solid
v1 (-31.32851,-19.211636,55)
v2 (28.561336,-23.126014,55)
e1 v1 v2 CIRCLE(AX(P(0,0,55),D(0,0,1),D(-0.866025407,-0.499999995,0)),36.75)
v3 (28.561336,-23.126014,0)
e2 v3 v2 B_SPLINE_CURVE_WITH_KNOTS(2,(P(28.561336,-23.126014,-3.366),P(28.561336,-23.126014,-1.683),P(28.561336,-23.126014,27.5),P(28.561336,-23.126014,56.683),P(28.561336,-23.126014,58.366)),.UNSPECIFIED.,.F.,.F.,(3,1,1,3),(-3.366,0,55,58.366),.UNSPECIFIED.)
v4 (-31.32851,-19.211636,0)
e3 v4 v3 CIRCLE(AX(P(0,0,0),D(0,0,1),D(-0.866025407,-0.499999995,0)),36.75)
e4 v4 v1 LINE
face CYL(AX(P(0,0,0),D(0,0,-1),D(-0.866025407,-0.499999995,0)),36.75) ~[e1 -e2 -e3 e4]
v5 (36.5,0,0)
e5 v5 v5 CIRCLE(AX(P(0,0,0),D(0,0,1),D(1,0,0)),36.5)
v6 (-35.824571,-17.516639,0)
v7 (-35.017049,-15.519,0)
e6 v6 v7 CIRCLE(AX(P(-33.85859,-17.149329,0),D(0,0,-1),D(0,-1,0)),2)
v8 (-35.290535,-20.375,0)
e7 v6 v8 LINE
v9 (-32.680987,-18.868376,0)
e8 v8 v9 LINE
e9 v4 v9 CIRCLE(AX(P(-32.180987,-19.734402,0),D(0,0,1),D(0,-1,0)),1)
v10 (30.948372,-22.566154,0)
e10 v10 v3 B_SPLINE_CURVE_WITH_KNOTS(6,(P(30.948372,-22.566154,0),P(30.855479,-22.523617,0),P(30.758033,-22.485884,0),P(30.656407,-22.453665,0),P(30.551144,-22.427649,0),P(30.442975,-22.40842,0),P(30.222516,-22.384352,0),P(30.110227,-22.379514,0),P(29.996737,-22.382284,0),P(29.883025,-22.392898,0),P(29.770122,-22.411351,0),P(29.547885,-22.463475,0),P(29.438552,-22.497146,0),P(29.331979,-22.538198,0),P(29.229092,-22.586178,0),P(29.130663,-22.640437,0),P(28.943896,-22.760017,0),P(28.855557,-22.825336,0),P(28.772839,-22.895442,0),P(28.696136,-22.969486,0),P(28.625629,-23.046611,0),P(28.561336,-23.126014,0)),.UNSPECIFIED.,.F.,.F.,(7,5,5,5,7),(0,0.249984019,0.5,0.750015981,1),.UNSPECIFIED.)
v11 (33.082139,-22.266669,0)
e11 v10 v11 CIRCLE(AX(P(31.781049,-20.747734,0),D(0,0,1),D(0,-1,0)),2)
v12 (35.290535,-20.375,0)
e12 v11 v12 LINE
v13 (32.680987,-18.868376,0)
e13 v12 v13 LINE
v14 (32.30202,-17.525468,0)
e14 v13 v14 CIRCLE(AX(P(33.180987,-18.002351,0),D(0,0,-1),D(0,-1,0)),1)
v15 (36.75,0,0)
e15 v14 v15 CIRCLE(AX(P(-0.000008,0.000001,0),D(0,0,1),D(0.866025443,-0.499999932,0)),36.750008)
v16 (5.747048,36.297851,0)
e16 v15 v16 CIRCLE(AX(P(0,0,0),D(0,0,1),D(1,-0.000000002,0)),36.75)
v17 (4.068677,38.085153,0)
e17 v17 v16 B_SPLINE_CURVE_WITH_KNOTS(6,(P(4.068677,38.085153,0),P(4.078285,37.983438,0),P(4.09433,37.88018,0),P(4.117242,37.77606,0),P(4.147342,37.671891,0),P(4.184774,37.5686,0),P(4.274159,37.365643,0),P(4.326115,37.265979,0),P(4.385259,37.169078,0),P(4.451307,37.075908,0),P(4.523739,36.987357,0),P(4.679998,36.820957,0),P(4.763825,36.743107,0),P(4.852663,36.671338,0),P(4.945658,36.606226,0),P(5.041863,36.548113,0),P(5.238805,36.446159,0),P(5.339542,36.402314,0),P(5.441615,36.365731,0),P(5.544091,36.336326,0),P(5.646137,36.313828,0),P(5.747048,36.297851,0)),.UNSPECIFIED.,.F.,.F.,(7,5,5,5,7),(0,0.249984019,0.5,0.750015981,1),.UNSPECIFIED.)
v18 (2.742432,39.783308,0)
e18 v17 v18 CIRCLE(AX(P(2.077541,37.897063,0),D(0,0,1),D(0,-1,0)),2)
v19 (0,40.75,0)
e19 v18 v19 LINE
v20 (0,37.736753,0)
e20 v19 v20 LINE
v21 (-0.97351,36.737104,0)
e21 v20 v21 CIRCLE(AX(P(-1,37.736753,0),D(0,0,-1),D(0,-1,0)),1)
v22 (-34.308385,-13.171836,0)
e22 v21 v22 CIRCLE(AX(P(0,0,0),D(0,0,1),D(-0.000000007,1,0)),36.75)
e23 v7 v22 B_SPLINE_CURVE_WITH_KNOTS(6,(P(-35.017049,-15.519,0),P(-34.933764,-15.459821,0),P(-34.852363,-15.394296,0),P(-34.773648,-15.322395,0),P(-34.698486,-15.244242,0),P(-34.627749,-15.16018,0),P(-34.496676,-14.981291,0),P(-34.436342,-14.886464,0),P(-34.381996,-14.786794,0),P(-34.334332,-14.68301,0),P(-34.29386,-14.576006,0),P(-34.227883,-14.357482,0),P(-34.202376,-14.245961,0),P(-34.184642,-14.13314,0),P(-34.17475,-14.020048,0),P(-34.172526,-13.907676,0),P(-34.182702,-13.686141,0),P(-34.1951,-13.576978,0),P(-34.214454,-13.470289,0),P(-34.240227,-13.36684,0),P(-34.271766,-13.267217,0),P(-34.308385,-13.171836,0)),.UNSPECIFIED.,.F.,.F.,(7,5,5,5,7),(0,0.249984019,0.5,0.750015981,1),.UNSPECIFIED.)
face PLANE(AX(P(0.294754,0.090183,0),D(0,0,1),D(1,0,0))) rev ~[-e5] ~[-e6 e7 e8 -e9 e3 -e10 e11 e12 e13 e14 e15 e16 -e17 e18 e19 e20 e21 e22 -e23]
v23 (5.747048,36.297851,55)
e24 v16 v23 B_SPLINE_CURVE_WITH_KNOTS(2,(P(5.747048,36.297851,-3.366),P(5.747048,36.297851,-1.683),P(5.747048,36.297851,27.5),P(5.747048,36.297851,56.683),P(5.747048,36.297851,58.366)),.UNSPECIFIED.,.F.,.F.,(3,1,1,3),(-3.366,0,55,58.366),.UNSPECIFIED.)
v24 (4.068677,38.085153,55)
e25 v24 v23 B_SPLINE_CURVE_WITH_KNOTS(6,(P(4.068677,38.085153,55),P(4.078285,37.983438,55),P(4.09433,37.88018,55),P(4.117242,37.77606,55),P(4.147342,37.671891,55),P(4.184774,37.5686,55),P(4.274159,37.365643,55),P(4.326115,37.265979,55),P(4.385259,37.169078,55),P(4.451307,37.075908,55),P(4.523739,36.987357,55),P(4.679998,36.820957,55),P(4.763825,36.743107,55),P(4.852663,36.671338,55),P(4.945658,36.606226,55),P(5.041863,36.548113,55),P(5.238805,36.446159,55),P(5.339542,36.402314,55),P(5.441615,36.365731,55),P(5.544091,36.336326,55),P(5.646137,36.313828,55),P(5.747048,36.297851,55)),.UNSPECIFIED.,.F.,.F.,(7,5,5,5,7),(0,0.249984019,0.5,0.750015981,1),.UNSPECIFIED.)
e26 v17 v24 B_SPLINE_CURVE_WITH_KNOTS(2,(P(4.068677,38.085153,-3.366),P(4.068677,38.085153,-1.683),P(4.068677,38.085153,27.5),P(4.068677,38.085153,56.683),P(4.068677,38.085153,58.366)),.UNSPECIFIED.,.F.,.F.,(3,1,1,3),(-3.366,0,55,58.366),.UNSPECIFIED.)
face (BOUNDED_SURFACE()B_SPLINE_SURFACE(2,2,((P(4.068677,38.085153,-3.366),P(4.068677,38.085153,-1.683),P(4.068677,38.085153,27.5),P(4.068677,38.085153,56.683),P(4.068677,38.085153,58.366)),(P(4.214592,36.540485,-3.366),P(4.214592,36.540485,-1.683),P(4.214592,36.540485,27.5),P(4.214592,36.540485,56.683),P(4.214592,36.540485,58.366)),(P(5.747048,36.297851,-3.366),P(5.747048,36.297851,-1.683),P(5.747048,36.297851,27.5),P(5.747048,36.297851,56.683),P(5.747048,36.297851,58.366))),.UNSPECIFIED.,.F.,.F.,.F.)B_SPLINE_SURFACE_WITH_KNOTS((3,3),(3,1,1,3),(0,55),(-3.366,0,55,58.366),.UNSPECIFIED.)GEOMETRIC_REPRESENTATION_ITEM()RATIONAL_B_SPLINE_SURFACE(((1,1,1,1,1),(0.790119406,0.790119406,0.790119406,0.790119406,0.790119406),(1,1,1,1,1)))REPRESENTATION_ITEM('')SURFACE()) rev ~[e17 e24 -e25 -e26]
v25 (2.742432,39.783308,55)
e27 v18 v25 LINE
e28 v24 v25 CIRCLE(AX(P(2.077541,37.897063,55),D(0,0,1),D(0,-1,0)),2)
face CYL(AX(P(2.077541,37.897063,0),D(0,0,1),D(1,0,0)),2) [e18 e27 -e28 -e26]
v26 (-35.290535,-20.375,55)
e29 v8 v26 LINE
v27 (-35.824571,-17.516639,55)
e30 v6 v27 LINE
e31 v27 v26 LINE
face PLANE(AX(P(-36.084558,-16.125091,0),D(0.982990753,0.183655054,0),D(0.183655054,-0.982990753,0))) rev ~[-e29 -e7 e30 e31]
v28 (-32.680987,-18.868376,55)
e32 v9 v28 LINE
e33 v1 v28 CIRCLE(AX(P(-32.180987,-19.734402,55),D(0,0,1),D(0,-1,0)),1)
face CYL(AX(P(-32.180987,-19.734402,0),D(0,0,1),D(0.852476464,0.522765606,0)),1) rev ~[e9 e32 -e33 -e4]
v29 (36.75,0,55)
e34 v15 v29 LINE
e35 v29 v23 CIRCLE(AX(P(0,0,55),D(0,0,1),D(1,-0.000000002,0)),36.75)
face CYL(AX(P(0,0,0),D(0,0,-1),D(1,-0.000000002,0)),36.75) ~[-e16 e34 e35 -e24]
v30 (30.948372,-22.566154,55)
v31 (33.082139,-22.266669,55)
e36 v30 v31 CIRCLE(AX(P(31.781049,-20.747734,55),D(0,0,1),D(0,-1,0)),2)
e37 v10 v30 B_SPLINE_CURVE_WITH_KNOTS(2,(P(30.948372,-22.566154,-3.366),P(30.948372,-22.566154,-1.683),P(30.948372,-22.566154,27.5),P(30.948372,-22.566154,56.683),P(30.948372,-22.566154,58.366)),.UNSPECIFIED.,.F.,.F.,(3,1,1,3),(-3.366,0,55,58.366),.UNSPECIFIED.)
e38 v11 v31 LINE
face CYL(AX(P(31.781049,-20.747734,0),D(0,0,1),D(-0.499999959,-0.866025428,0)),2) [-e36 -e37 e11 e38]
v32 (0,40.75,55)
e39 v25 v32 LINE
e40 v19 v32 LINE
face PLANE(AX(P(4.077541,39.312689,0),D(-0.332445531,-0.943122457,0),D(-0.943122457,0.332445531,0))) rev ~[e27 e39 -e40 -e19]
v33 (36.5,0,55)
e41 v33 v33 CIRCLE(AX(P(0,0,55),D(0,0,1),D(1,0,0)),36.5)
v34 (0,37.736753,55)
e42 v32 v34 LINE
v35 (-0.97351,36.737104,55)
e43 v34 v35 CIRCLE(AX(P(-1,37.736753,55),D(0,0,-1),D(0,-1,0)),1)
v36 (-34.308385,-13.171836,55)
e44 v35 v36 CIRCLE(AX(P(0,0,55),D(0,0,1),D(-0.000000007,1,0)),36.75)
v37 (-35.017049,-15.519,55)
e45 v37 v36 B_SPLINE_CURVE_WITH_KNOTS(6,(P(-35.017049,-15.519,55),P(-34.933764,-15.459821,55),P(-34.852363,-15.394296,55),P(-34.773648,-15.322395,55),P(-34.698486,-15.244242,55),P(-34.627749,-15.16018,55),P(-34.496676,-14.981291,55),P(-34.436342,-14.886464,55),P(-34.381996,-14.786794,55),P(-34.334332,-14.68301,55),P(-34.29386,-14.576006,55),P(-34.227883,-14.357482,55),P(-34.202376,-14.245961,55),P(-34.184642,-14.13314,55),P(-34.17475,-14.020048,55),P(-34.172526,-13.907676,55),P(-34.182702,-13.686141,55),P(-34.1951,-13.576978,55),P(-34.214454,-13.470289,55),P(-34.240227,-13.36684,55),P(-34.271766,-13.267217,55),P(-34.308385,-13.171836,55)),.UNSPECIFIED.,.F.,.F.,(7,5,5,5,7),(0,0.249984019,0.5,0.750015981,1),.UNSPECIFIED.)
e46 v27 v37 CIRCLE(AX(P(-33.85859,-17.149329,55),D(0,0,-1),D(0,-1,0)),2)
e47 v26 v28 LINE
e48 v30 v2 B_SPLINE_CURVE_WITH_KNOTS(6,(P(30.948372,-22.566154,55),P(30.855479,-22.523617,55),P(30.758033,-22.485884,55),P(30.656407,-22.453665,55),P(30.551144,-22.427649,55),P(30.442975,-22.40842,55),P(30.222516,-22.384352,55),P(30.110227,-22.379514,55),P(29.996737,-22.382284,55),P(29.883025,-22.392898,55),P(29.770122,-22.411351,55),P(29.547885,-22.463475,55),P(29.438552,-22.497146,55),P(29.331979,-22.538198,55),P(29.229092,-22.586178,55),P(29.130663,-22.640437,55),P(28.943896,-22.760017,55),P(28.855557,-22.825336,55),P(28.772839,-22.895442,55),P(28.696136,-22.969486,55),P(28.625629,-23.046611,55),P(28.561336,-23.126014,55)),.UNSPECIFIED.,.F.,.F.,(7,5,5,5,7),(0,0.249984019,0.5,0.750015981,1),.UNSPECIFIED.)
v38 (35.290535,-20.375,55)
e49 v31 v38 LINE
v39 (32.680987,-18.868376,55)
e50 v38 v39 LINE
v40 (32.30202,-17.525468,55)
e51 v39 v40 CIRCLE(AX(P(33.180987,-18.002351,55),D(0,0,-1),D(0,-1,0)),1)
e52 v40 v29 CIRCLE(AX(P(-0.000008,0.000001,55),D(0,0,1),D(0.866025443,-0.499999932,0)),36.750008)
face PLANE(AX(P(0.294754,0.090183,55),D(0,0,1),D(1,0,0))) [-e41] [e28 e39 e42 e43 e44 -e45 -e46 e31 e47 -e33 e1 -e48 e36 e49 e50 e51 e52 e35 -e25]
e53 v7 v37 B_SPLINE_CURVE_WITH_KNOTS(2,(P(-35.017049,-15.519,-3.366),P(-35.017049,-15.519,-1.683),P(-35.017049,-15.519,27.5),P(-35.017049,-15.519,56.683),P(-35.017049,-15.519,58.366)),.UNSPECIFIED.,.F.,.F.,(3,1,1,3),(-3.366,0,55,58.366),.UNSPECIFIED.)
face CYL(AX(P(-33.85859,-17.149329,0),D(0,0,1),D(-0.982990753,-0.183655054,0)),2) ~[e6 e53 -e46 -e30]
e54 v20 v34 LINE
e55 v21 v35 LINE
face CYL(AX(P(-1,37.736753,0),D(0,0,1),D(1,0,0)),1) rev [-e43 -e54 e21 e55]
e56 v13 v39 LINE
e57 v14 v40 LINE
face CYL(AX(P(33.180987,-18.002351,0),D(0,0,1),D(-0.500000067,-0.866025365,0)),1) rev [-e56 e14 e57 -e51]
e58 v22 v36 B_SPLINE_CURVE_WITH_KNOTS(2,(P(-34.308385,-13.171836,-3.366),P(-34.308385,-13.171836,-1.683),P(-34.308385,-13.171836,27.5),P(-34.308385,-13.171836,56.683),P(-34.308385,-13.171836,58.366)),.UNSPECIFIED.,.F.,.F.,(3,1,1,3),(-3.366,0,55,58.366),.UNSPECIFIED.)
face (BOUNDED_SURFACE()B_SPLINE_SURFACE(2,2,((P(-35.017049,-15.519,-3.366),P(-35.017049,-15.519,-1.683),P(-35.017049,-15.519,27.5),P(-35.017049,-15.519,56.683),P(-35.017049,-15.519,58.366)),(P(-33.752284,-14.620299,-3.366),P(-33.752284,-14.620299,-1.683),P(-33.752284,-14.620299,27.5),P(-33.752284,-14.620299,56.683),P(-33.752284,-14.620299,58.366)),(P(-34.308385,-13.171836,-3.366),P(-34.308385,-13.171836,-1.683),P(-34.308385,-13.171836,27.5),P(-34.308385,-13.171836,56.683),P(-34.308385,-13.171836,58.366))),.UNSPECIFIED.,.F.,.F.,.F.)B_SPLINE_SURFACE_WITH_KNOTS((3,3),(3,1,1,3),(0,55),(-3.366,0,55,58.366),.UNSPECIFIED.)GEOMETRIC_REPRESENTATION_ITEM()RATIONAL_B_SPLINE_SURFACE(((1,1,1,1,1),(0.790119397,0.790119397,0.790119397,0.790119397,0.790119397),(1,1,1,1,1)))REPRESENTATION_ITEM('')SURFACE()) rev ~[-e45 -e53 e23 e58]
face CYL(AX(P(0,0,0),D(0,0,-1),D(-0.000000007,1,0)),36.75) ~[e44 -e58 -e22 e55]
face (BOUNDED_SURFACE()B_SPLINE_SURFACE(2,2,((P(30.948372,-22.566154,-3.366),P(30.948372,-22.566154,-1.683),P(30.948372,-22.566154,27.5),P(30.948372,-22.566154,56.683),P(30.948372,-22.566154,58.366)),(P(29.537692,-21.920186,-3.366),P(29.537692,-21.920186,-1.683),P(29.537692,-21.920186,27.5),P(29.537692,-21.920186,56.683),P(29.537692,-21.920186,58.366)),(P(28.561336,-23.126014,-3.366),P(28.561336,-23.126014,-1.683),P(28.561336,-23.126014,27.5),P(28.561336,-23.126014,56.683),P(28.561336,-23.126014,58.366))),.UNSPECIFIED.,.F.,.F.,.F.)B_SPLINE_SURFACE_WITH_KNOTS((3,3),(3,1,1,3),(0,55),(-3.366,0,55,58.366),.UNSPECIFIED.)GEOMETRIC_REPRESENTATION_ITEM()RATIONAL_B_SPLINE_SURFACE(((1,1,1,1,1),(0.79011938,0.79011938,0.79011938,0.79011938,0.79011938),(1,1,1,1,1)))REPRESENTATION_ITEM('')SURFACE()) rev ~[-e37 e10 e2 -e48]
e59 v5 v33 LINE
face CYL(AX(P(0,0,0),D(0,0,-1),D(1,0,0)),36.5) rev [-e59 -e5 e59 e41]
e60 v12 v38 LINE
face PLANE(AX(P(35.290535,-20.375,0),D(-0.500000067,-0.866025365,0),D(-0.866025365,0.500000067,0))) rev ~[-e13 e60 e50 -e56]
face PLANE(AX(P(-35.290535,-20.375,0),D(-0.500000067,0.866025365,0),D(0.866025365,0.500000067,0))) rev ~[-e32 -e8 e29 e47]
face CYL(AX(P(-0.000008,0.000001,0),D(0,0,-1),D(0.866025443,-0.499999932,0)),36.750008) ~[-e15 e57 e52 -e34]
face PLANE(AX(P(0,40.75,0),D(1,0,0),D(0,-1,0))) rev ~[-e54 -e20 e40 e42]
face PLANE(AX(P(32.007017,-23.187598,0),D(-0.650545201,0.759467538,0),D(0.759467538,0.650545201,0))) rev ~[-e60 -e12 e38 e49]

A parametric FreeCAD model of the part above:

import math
import FreeCAD as App
import Part
import Sketcher

V = App.Vector
Q = App.Units.Quantity


def edges_at(feature, points):
    """Names of the edges that pass closest to the given points."""
    edges = feature.Shape.Edges
    near = lambda p: min(range(len(edges)), key=lambda i: edges[i].distToShape(Part.Vertex(*p))[0])
    return sorted({f"Edge{near(p) + 1}" for p in points})

doc = App.newDocument("Part")
body = doc.addObject("PartDesign::Body", "Body")

# Sketch on XY plane
sketch1 = body.newObject("Sketcher::SketchObject", "Sketch")
sketch1.AttachmentSupport = (doc.getObject("XY_Plane"), [""])
sketch1.MapMode = "FlatFace"
sketch1.addGeometry(Part.ArcOfCircle(Part.Circle(V(-0.000008, 0.000001, 0), V(0, 0, 1), 36.750008), math.radians(-29.999995), math.radians(-0.000002)), False)
sketch1.addGeometry(Part.ArcOfCircle(Part.Circle(V(0, 0, 0), V(0, 0, 1), 36.75), math.radians(0), math.radians(83.629716)), False)
sketch1.addGeometry(Part.LineSegment(V(4.077541, 36.523091, 0), V(4.077541, 39.312689, 0)), False)
sketch1.addGeometry(Part.LineSegment(V(4.077541, 39.312689, 0), V(0, 40.75, 0)), False)
sketch1.addGeometry(Part.LineSegment(V(0, 40.75, 0), V(0, 36.75, 0)), False)
sketch1.addGeometry(Part.ArcOfCircle(Part.Circle(V(0, 0, 0), V(0, 0, 1), 36.75), math.radians(90), math.radians(203.629717)), False)
sketch1.addGeometry(Part.LineSegment(V(-33.668695, -14.730292, 0), V(-36.084558, -16.125091, 0)), False)
sketch1.addGeometry(Part.LineSegment(V(-36.084558, -16.125091, 0), V(-35.290535, -20.375, 0)), False)
sketch1.addGeometry(Part.LineSegment(V(-35.290535, -20.375, 0), V(-31.826434, -18.375, 0)), False)
sketch1.addGeometry(Part.ArcOfCircle(Part.Circle(V(0, 0, 0), V(0, 0, 1), 36.75), math.radians(-150), math.radians(-36.370282)), False)
sketch1.addGeometry(Part.LineSegment(V(29.591154, -21.792799, 0), V(32.007017, -23.187598, 0)), False)
sketch1.addGeometry(Part.LineSegment(V(32.007017, -23.187598, 0), V(35.290535, -20.375, 0)), False)
sketch1.addGeometry(Part.LineSegment(V(35.290535, -20.375, 0), V(31.826434, -18.375, 0)), False)
sketch1.addGeometry(Part.Circle(V(0, 0, 0), V(0, 0, 1), 36.5), False)
sketch1.addConstraint(Sketcher.Constraint("Tangent", 0, 2, 1, 1))
sketch1.addConstraint(Sketcher.Constraint("Coincident", 1, 2, 2, 1))
sketch1.addConstraint(Sketcher.Constraint("Coincident", 2, 2, 3, 1))
sketch1.addConstraint(Sketcher.Constraint("Coincident", 3, 2, 4, 1))
sketch1.addConstraint(Sketcher.Constraint("Coincident", 4, 2, 5, 1))
sketch1.addConstraint(Sketcher.Constraint("Coincident", 5, 2, 6, 1))
sketch1.addConstraint(Sketcher.Constraint("Coincident", 6, 2, 7, 1))
sketch1.addConstraint(Sketcher.Constraint("Coincident", 7, 2, 8, 1))
sketch1.addConstraint(Sketcher.Constraint("Coincident", 8, 2, 9, 1))
sketch1.addConstraint(Sketcher.Constraint("Coincident", 9, 2, 10, 1))
sketch1.addConstraint(Sketcher.Constraint("Coincident", 10, 2, 11, 1))
sketch1.addConstraint(Sketcher.Constraint("Coincident", 11, 2, 12, 1))
sketch1.addConstraint(Sketcher.Constraint("Coincident", 12, 2, 0, 1))
sketch1.addConstraint(Sketcher.Constraint("Vertical", 2))
sketch1.addConstraint(Sketcher.Constraint("Vertical", 4))
sketch1.addConstraint(Sketcher.Constraint("Coincident", 0, 3, -1, 1))
sketch1.addConstraint(Sketcher.Constraint("Coincident", 5, 3, -1, 1))
sketch1.addConstraint(Sketcher.Constraint("Coincident", 9, 3, -1, 1))
sketch1.addConstraint(Sketcher.Constraint("Coincident", 13, 3, -1, 1))
sketch1.addConstraint(Sketcher.Constraint("Equal", 1, 5))
sketch1.addConstraint(Sketcher.Constraint("Equal", 5, 9))
sketch1.addConstraint(Sketcher.Constraint("Symmetric", 7, 2, 11, 2, -2))
sketch1.addConstraint(Sketcher.Constraint("Symmetric", 8, 2, 12, 2, -2))
sketch1.addConstraint(Sketcher.Constraint("PointOnObject", 0, 2, -1))
sketch1.addConstraint(Sketcher.Constraint("PointOnObject", 3, 2, -2))
sketch1.addConstraint(Sketcher.Constraint("Parallel", 6, 8))
sketch1.addConstraint(Sketcher.Constraint("Parallel", 10, 12))
sketch1.addConstraint(Sketcher.Constraint("Equal", 3, 7))
sketch1.addConstraint(Sketcher.Constraint("Equal", 6, 10))
sketch1.addConstraint(Sketcher.Constraint("Equal", 7, 11))
sketch1.addConstraint(Sketcher.Constraint("Diameter", 13, 73.0))
sketch1.addConstraint(Sketcher.Constraint("DistanceY", 4, 2, 4, 1, 4.0))
sketch1.addConstraint(Sketcher.Constraint("Angle", 6, Q("-150.000003 deg")))
sketch1.addConstraint(Sketcher.Constraint("Radius", 1, 36.75))
sketch1.addConstraint(Sketcher.Constraint("Distance", 8, 3.999999))
sketch1.addConstraint(Sketcher.Constraint("DistanceY", 7, 2, -1, 1, 20.375))
sketch1.addConstraint(Sketcher.Constraint("Distance", 6, 2.789598))
sketch1.addConstraint(Sketcher.Constraint("DistanceY", 9, 2, -1, 1, 21.792799))
sketch1.addConstraint(Sketcher.Constraint("DistanceY", 1, 2, 2, 2, 2.789598))
pad1 = body.newObject("PartDesign::Pad", "Pad")
pad1.Profile = sketch1
pad1.Length = 55
doc.recompute()

fillet = body.newObject("PartDesign::Fillet", "Fillet")
fillet.Base = (pad1, edges_at(pad1, [(4.078, 39.313, 27.5)]))
fillet.Radius = 2
doc.recompute()

fillet2 = body.newObject("PartDesign::Fillet", "Fillet001")
fillet2.Base = (fillet, edges_at(fillet, [(4.078, 36.523, 27.5)]))
fillet2.Radius = 2
doc.recompute()

fillet3 = body.newObject("PartDesign::Fillet", "Fillet002")
fillet3.Base = (fillet2, edges_at(fillet2, [(0, 36.75, 27.5)]))
fillet3.Radius = 1
doc.recompute()

fillet4 = body.newObject("PartDesign::Fillet", "Fillet003")
fillet4.Base = (fillet3, edges_at(fillet3, [(32.007, -23.188, 27.5)]))
fillet4.Radius = 2
doc.recompute()

fillet5 = body.newObject("PartDesign::Fillet", "Fillet004")
fillet5.Base = (fillet4, edges_at(fillet4, [(29.591, -21.793, 27.5)]))
fillet5.Radius = 2
doc.recompute()

fillet6 = body.newObject("PartDesign::Fillet", "Fillet005")
fillet6.Base = (fillet5, edges_at(fillet5, [(31.826, -18.375, 27.5)]))
fillet6.Radius = 1
doc.recompute()

fillet7 = body.newObject("PartDesign::Fillet", "Fillet006")
fillet7.Base = (fillet6, edges_at(fillet6, [(-31.826, -18.375, 27.5)]))
fillet7.Radius = 1
doc.recompute()

fillet8 = body.newObject("PartDesign::Fillet", "Fillet007")
fillet8.Base = (fillet7, edges_at(fillet7, [(-36.085, -16.125, 27.5)]))
fillet8.Radius = 2
doc.recompute()

fillet9 = body.newObject("PartDesign::Fillet", "Fillet008")
fillet9.Base = (fillet8, edges_at(fillet8, [(-33.669, -14.73, 27.5)]))
fillet9.Radius = 2

doc.recompute()
